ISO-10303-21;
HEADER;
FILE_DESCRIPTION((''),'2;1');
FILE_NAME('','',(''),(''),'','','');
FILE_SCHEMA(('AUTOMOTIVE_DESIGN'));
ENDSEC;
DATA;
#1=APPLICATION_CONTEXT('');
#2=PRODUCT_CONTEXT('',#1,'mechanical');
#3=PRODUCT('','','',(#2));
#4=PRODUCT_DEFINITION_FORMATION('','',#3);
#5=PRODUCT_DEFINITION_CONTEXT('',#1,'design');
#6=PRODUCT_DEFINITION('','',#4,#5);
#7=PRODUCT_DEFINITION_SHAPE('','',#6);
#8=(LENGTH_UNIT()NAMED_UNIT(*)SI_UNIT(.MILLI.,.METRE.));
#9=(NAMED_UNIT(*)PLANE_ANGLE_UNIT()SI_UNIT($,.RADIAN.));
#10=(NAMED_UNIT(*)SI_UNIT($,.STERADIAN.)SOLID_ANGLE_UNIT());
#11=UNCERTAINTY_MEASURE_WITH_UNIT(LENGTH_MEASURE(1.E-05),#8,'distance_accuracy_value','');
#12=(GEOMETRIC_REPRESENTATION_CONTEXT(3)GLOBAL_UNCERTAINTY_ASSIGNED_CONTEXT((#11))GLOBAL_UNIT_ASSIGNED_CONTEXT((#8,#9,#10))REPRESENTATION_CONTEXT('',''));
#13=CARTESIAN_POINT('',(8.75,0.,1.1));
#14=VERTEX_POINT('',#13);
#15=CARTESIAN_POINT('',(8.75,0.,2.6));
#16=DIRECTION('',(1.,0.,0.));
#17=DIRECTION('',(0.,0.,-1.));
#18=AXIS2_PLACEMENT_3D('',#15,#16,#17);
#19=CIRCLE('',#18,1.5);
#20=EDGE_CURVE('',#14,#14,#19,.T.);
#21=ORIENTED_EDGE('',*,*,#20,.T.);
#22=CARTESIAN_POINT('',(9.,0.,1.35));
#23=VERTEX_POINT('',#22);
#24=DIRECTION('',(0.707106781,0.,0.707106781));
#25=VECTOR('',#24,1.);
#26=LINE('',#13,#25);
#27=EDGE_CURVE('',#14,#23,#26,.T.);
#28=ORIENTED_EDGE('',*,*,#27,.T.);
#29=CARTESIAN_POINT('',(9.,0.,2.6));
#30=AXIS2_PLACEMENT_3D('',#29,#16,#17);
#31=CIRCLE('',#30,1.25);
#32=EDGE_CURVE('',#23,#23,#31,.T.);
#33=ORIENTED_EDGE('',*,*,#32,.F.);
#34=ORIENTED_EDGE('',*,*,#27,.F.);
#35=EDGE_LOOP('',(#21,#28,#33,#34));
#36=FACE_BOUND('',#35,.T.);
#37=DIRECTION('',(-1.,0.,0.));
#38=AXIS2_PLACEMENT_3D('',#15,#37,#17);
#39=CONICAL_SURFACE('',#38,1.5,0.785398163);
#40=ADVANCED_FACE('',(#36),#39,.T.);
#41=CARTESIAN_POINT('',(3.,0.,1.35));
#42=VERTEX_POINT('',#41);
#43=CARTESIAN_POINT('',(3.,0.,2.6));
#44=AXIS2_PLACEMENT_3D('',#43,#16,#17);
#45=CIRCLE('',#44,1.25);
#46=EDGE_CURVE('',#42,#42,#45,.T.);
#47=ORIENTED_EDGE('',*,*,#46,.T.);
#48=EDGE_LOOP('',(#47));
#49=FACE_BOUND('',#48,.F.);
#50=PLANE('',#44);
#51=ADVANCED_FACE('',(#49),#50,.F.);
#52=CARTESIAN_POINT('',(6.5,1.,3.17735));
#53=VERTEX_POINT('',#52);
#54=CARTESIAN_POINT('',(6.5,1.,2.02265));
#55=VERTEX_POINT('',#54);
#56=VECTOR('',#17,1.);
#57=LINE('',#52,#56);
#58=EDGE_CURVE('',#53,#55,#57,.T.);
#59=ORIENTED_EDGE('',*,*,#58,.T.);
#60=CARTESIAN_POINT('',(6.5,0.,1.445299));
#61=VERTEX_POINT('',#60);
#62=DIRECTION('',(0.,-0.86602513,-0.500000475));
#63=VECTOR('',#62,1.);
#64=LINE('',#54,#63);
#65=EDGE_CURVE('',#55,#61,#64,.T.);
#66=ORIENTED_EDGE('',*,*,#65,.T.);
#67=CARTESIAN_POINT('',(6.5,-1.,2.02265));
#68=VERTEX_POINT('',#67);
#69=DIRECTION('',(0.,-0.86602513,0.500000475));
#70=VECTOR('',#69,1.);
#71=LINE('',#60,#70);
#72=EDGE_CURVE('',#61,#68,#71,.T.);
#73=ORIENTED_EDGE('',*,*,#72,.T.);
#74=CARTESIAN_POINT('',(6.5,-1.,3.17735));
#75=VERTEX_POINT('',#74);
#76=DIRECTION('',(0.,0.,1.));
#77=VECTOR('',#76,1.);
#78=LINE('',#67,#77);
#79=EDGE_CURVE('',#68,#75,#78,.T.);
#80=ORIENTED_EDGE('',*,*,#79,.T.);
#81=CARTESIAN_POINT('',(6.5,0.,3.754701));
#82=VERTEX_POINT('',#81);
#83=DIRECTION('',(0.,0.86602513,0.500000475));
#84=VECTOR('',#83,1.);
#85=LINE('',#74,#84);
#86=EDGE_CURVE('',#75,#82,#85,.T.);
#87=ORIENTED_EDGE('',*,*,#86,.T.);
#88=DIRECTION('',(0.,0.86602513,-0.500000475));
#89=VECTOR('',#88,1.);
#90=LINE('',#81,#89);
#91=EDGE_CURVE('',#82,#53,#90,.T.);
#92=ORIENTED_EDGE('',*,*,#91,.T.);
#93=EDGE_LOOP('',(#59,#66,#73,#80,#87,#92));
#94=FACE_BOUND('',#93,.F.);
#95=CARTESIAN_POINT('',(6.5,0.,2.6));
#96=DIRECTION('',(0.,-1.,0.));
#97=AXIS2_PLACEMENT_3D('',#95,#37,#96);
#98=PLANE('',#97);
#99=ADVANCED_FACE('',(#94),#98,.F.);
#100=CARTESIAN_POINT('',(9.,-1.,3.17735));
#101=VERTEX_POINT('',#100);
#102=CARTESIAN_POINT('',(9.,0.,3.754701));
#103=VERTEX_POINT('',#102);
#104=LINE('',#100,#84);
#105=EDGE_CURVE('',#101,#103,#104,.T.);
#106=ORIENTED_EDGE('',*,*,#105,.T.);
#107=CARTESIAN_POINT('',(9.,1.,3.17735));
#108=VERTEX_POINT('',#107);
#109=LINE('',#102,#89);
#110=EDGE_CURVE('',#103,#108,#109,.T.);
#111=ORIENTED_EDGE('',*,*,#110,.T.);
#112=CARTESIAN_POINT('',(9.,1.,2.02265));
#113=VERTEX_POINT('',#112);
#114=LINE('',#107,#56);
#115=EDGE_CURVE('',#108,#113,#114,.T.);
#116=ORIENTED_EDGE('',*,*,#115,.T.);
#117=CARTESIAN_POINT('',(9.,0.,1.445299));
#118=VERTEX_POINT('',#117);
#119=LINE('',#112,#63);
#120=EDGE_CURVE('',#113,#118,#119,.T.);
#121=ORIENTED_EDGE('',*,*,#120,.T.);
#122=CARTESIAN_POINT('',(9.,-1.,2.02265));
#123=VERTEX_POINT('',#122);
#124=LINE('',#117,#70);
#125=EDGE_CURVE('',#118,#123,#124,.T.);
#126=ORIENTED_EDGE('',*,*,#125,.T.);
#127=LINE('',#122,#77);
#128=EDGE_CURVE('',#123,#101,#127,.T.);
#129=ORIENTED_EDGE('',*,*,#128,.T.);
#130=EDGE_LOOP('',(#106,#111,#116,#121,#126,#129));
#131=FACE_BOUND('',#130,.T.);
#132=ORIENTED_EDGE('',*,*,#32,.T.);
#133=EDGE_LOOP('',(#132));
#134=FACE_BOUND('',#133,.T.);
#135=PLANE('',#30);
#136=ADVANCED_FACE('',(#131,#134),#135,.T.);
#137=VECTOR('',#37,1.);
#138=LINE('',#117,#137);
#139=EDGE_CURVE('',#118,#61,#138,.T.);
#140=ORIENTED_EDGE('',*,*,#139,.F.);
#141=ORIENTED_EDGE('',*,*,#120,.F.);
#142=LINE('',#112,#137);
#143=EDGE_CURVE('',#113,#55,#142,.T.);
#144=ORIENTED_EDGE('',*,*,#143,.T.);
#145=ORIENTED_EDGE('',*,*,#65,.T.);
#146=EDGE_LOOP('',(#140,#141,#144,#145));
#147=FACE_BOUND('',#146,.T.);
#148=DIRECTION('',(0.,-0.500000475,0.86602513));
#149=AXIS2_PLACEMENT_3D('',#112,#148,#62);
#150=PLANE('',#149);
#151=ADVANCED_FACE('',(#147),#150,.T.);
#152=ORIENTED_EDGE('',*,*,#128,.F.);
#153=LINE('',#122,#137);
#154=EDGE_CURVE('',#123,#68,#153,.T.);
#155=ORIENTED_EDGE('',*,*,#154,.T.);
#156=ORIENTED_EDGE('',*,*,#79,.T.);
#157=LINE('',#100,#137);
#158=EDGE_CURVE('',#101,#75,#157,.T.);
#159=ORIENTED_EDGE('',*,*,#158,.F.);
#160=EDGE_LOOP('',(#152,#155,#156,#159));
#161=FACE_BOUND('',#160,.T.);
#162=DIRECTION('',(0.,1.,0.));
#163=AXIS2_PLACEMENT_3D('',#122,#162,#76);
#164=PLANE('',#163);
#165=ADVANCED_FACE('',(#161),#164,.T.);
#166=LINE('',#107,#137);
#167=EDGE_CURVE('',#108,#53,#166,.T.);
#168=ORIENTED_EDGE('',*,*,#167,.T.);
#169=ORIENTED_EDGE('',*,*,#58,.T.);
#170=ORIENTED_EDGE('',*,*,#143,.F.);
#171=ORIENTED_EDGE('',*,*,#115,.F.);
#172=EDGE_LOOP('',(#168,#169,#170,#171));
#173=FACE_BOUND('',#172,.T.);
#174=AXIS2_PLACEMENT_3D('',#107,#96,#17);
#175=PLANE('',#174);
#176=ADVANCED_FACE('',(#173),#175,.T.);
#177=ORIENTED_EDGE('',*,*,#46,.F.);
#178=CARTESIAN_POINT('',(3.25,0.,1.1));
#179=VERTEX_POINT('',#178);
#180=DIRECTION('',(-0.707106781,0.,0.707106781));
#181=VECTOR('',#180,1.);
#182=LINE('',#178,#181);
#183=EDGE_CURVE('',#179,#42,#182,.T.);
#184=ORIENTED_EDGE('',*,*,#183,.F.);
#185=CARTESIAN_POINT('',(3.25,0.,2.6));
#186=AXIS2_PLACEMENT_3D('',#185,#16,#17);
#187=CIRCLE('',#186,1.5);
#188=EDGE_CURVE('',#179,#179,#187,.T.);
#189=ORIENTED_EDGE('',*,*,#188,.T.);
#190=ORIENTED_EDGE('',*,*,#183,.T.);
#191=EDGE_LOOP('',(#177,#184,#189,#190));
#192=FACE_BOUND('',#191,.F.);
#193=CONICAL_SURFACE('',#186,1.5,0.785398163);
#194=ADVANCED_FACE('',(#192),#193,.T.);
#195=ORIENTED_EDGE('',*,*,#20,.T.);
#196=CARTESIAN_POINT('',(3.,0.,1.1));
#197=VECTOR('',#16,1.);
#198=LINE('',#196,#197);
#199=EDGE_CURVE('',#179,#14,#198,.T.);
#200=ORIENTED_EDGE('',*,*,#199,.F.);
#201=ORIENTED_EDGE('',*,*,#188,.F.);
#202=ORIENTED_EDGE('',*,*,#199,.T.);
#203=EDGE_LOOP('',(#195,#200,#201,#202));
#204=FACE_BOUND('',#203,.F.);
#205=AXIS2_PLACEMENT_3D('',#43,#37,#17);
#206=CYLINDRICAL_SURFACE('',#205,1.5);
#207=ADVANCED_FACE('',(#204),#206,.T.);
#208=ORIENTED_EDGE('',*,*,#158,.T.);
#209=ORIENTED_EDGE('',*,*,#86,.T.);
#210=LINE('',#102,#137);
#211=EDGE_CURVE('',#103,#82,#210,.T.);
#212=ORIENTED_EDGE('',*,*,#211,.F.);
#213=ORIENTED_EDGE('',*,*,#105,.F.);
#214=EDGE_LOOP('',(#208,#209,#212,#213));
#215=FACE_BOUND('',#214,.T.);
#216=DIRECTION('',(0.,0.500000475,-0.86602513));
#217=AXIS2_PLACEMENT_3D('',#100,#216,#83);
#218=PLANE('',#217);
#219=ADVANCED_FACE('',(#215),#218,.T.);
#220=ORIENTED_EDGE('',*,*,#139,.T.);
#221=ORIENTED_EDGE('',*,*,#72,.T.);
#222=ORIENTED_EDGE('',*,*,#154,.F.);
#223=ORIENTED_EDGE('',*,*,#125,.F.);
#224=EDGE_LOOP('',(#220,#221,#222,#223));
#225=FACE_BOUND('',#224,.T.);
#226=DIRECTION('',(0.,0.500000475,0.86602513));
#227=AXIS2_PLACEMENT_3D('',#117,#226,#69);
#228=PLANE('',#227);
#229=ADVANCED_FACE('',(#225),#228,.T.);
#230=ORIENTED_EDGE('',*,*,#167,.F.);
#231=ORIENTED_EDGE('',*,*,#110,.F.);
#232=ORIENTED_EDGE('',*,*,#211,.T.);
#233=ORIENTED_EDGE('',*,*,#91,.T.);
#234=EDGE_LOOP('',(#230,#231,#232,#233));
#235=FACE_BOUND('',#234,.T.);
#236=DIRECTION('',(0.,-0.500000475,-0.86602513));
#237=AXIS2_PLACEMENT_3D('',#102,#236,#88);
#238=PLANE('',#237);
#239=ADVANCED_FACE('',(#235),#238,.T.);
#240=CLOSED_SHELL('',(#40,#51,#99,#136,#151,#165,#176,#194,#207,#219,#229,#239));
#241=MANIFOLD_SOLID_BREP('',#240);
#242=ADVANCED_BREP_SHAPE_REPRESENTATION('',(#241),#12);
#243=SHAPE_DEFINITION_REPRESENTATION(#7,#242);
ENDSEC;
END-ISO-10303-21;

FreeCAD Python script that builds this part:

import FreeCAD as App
import Part
import Sketcher


def edges_at(feature, points):
    """Names of the edges that pass closest to the given points."""
    edges = feature.Shape.Edges
    near = lambda p: min(range(len(edges)), key=lambda i: edges[i].distToShape(Part.Vertex(*p))[0])
    return sorted({f"Edge{near(p) + 1}" for p in points})


def add_polygon(sketch, points):
    """Adds a closed chain of lines whose ends are joined by coincident constraints."""
    first, n = sketch.GeometryCount, len(points)
    for a, b in zip(points, points[1:] + points[:1]):
        sketch.addGeometry(Part.LineSegment(App.Vector(*a, 0), App.Vector(*b, 0)), False)
    for i in range(n):
        sketch.addConstraint(Sketcher.Constraint("Coincident", first + i, 2, first + (i + 1) % n, 1))

doc = App.newDocument("Part")
body = doc.addObject("PartDesign::Body", "Body")

# Sketch on YZ plane
sketch1 = body.newObject("Sketcher::SketchObject", "Sketch")
sketch1.AttachmentSupport = (doc.getObject("YZ_Plane"), [""])
sketch1.MapMode = "FlatFace"
sketch1.AttachmentOffset = App.Placement(App.Vector(0, 0, 3), App.Rotation())
sketch1.addGeometry(Part.Circle(App.Vector(0, 2.6, 0), App.Vector(0, 0, 1), 1.5), False)
sketch1.addConstraint(Sketcher.Constraint("PointOnObject", 0, 3, -2))
sketch1.addConstraint(Sketcher.Constraint("Diameter", 0, 3.0))
sketch1.addConstraint(Sketcher.Constraint("DistanceY", -1, 1, 0, 3, 2.6))
pad1 = body.newObject("PartDesign::Pad", "Pad")
pad1.Profile = sketch1
pad1.Length = 6
doc.recompute()

chamfer = body.newObject("PartDesign::Chamfer", "Chamfer")
chamfer.Base = (pad1, edges_at(pad1, [(9, 0, 4.1), (3, 0, 4.1)]))
chamfer.Size = 0.25

# Sketch on YZ plane
sketch2 = body.newObject("Sketcher::SketchObject", "Sketch001")
sketch2.AttachmentSupport = (doc.getObject("YZ_Plane"), [""])
sketch2.MapMode = "FlatFace"
sketch2.AttachmentOffset = App.Placement(App.Vector(0, 0, 9), App.Rotation())
add_polygon(sketch2, [(0, 3.8), (-1, 3.2), (-1, 2), (0, 1.4), (1, 2), (1, 3.2)])  # lines 0-5
sketch2.addConstraint(Sketcher.Constraint("Vertical", 1))
sketch2.addConstraint(Sketcher.Constraint("Vertical", 4))
sketch2.addConstraint(Sketcher.Constraint("Symmetric", 1, 2, 3, 2, -2))
sketch2.addConstraint(Sketcher.Constraint("PointOnObject", 2, 2, -2))
sketch2.addConstraint(Sketcher.Constraint("PointOnObject", 5, 2, -2))
sketch2.addConstraint(Sketcher.Constraint("Parallel", 0, 3))
sketch2.addConstraint(Sketcher.Constraint("Parallel", 2, 5))
sketch2.addConstraint(Sketcher.Constraint("DistanceX", 0, 2, -1, 1, 1.0))
sketch2.addConstraint(Sketcher.Constraint("DistanceY", 1, 2, 1, 1, 1.1547))
sketch2.addConstraint(Sketcher.Constraint("Distance", 0, 1.154701))
sketch2.addConstraint(Sketcher.Constraint("DistanceY", -1, 1, 2, 2, 1.445299))
pocket1 = body.newObject("PartDesign::Pocket", "Pocket")
pocket1.Profile = sketch2
pocket1.Length = 2.5

doc.recompute()
